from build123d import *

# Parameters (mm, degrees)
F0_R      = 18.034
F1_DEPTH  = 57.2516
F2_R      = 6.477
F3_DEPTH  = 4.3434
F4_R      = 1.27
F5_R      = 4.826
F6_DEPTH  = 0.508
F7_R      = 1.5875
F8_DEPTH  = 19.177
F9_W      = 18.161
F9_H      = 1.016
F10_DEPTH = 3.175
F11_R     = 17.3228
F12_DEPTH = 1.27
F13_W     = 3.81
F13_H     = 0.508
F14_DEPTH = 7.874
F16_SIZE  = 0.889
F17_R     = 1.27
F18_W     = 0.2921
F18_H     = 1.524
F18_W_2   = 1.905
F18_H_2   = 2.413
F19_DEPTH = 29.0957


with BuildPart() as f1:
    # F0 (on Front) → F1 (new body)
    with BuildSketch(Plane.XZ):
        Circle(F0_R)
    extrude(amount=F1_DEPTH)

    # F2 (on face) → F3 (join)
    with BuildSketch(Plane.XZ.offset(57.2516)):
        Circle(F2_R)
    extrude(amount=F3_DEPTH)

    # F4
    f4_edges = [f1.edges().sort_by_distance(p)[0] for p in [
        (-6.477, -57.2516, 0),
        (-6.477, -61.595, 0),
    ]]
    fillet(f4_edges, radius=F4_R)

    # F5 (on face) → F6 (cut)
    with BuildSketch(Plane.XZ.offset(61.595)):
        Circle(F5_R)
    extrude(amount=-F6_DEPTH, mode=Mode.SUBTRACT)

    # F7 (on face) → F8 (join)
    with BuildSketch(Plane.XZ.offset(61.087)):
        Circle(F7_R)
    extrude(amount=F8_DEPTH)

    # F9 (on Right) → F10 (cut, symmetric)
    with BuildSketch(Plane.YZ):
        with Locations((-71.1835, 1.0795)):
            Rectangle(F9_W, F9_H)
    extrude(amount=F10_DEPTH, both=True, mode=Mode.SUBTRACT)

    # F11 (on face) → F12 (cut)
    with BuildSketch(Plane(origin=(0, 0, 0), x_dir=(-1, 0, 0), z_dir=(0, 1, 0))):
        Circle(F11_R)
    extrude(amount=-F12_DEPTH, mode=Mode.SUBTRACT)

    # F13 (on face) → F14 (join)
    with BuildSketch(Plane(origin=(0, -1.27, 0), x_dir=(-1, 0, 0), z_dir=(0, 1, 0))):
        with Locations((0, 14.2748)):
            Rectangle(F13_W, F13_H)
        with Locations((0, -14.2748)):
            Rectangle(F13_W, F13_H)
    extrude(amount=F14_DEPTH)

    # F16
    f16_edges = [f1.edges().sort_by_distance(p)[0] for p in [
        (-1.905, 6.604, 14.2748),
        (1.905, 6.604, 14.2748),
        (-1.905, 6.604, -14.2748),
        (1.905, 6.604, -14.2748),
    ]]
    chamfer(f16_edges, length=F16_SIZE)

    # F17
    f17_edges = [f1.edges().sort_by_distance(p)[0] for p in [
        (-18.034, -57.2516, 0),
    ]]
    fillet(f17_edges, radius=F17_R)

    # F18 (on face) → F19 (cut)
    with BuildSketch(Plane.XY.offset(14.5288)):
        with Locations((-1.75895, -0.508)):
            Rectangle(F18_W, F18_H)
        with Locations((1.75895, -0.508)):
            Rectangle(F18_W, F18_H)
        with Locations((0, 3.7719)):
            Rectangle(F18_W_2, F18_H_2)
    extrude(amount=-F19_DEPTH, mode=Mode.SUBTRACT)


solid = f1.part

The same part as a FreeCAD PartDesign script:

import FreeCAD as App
import Part
import Sketcher
Q = App.Units.Quantity


def edges_at(feature, points):
    """Names of the edges that pass closest to the given points."""
    edges = feature.Shape.Edges
    near = lambda p: min(range(len(edges)), key=lambda i: edges[i].distToShape(Part.Vertex(*p))[0])
    return sorted({f"Edge{near(p) + 1}" for p in points})


def add_polygon(sketch, points):
    """Adds a closed chain of lines whose ends are joined by coincident constraints."""
    first, n = sketch.GeometryCount, len(points)
    for a, b in zip(points, points[1:] + points[:1]):
        sketch.addGeometry(Part.LineSegment(App.Vector(*a, 0), App.Vector(*b, 0)), False)
    for i in range(n):
        sketch.addConstraint(Sketcher.Constraint("Coincident", first + i, 2, first + (i + 1) % n, 1))

doc = App.newDocument("Part")
body = doc.addObject("PartDesign::Body", "Body")

# Sketch on XZ plane
sketch1 = doc.addObject("Sketcher::SketchObject", "Sketch")
body.addObject(sketch1)
sketch1.AttachmentSupport = (doc.XZ_Plane, [""])
sketch1.MapMode = "FlatFace"
sketch1.addGeometry(Part.Circle(App.Vector(0, 0, 0), App.Vector(0, 0, 1), 18), False)
sketch1.addConstraint([
    Sketcher.Constraint("Coincident", 0, 3, -1, 1),
    Sketcher.Constraint("Diameter", 0, Q("1.42 in")),
])
pad1 = doc.addObject("PartDesign::Pad", "Pad")
body.addObject(pad1)
pad1.Profile = sketch1
pad1.Length = Q("2.254 in")

# Sketch on XZ plane
sketch2 = doc.addObject("Sketcher::SketchObject", "Sketch001")
body.addObject(sketch2)
sketch2.AttachmentSupport = (doc.XZ_Plane, [""])
sketch2.MapMode = "FlatFace"
sketch2.AttachmentOffset = App.Placement(App.Vector(0, 0, 2.254 * 25.4), App.Rotation())
sketch2.addGeometry(Part.Circle(App.Vector(0, 0, 0), App.Vector(0, 0, 1), 6), False)
sketch2.addConstraint([
    Sketcher.Constraint("Coincident", 0, 3, -1, 1),
    Sketcher.Constraint("Diameter", 0, Q("0.51 in")),
])
pad2 = doc.addObject("PartDesign::Pad", "Pad001")
body.addObject(pad2)
pad2.Profile = sketch2
pad2.Length = Q("0.171 in")
doc.recompute()

fillet = doc.addObject("PartDesign::Fillet", "Fillet")
body.addObject(fillet)
fillet.Base = (pad2, edges_at(pad2, [(-6.477, -57.252, 0), (-6.477, -61.595, 0)]))
fillet.Radius = Q("0.05 in")

# Sketch on XZ plane
sketch3 = doc.addObject("Sketcher::SketchObject", "Sketch002")
body.addObject(sketch3)
sketch3.AttachmentSupport = (doc.XZ_Plane, [""])
sketch3.MapMode = "FlatFace"
sketch3.AttachmentOffset = App.Placement(App.Vector(0, 0, 2.425 * 25.4), App.Rotation())
sketch3.addGeometry(Part.Circle(App.Vector(0, 0, 0), App.Vector(0, 0, 1), 4.8), False)
sketch3.addConstraint([
    Sketcher.Constraint("Coincident", 0, 3, -1, 1),
    Sketcher.Constraint("Diameter", 0, Q("0.38 in")),
])
pocket1 = doc.addObject("PartDesign::Pocket", "Pocket")
body.addObject(pocket1)
pocket1.Profile = sketch3
pocket1.Length = Q("0.02 in")

# Sketch on XZ plane
sketch4 = doc.addObject("Sketcher::SketchObject", "Sketch003")
body.addObject(sketch4)
sketch4.AttachmentSupport = (doc.XZ_Plane, [""])
sketch4.MapMode = "FlatFace"
sketch4.AttachmentOffset = App.Placement(App.Vector(0, 0, 2.405 * 25.4), App.Rotation())
sketch4.addGeometry(Part.Circle(App.Vector(0, 0, 0), App.Vector(0, 0, 1), 1.6), False)
sketch4.addConstraint([
    Sketcher.Constraint("Coincident", 0, 3, -1, 1),
    Sketcher.Constraint("Diameter", 0, Q("0.125 in")),
])
pad3 = doc.addObject("PartDesign::Pad", "Pad002")
body.addObject(pad3)
pad3.Profile = sketch4
pad3.Length = Q("0.755 in")

# Sketch on YZ plane
sketch5 = doc.addObject("Sketcher::SketchObject", "Sketch004")
body.addObject(sketch5)
sketch5.AttachmentSupport = (doc.YZ_Plane, [""])
sketch5.MapMode = "FlatFace"
add_polygon(sketch5, [(-80.3, 1.6), (-80.3, 0.6), (-62.1, 0.6), (-62.1, 1.6)])  # lines 0-3
sketch5.addConstraint([
    Sketcher.Constraint("Vertical", 0),
    Sketcher.Constraint("Horizontal", 1),
    Sketcher.Constraint("Vertical", 2),
    Sketcher.Constraint("Horizontal", 3),
    Sketcher.Constraint("DistanceY", 0, 2, 0, 1, Q("0.04 in")),
    Sketcher.Constraint("DistanceX", 1, 1, 1, 2, Q("0.715 in")),
    Sketcher.Constraint("DistanceX", 0, 2, -1, 1, Q("3.16 in")),
    Sketcher.Constraint("DistanceY", -1, 1, 2, 2, Q("0.0625 in")),
])
pocket2 = doc.addObject("PartDesign::Pocket", "Pocket001")
body.addObject(pocket2)
pocket2.Profile = sketch5
pocket2.Length = Q("0.25 in")
pocket2.Midplane = True

# Sketch on XZ plane
sketch6 = doc.addObject("Sketcher::SketchObject", "Sketch005")
body.addObject(sketch6)
sketch6.AttachmentSupport = (doc.XZ_Plane, [""])
sketch6.MapMode = "FlatFace"
sketch6.addGeometry(Part.Circle(App.Vector(0, 0, 0), App.Vector(0, 0, 1), 17), False)
sketch6.addConstraint([
    Sketcher.Constraint("Coincident", 0, 3, -1, 1),
    Sketcher.Constraint("Diameter", 0, Q("1.364 in")),
])
pocket3 = doc.addObject("PartDesign::Pocket", "Pocket002")
body.addObject(pocket3)
pocket3.Profile = sketch6
pocket3.Length = Q("0.05 in")
pocket3.Reversed = True

# Sketch on XZ plane
sketch7 = doc.addObject("Sketcher::SketchObject", "Sketch006")
body.addObject(sketch7)
sketch7.AttachmentSupport = (doc.XZ_Plane, [""])
sketch7.MapMode = "FlatFace"
sketch7.AttachmentOffset = App.Placement(App.Vector(0, 0, 0.05 * 25.4), App.Rotation())
add_polygon(sketch7, [(1.9, 14.5), (1.9, 14), (-1.9, 14), (-1.9, 14.5)])  # lines 0-3
add_polygon(sketch7, [(1.9, -14), (1.9, -14.5), (-1.9, -14.5), (-1.9, -14)])  # lines 4-7
sketch7.addConstraint([
    Sketcher.Constraint("Vertical", 0),
    Sketcher.Constraint("Horizontal", 1),
    Sketcher.Constraint("Vertical", 2),
    Sketcher.Constraint("Horizontal", 3),
    Sketcher.Constraint("Vertical", 4),
    Sketcher.Constraint("Horizontal", 5),
    Sketcher.Constraint("Vertical", 6),
    Sketcher.Constraint("Horizontal", 7),
    Sketcher.Constraint("Symmetric", 2, 2, 4, 2, -1, 1),
    Sketcher.Constraint("Symmetric", 0, 2, 6, 2, -1, 1),
    Sketcher.Constraint("Vertical", 3, 2, 4, 2),
    Sketcher.Constraint("DistanceX", 1, 2, 1, 1, Q("0.15 in")),
    Sketcher.Constraint("DistanceY", 0, 2, 0, 1, Q("0.02 in")),
    Sketcher.Constraint("DistanceY", -1, 1, 0, 2, Q("0.552 in")),
])
pad4 = doc.addObject("PartDesign::Pad", "Pad003")
body.addObject(pad4)
pad4.Profile = sketch7
pad4.Length = Q("0.31 in")
pad4.Reversed = True
doc.recompute()

chamfer = doc.addObject("PartDesign::Chamfer", "Chamfer")
body.addObject(chamfer)
chamfer.Base = (pad4, edges_at(pad4, [
    (-1.905, 6.604, 14.275),
    (1.905, 6.604, 14.275),
    (-1.905, 6.604, -14.275),
    (1.905, 6.604, -14.275),
]))
chamfer.Size = Q("0.035 in")
doc.recompute()

fillet2 = doc.addObject("PartDesign::Fillet", "Fillet001")
body.addObject(fillet2)
fillet2.Base = (chamfer, edges_at(chamfer, [(-18.034, -57.252, 0)]))
fillet2.Radius = Q("0.05 in")

# Sketch on XY plane
sketch8 = doc.addObject("Sketcher::SketchObject", "Sketch007")
body.addObject(sketch8)
sketch8.AttachmentSupport = (doc.XY_Plane, [""])
sketch8.MapMode = "FlatFace"
sketch8.AttachmentOffset = App.Placement(App.Vector(0, 0, 0.572 * 25.4), App.Rotation())
add_polygon(sketch8, [(-1.91, 0.25), (-1.91, -1.27), (-1.61, -1.27), (-1.61, 0.25)])  # lines 0-3
add_polygon(sketch8, [(1.61, 0.25), (1.61, -1.27), (1.91, -1.27), (1.91, 0.25)])  # lines 4-7
add_polygon(sketch8, [(-0.95, 4.98), (-0.95, 2.57), (0.95, 2.57), (0.95, 4.98)])  # lines 8-11
sketch8.addConstraint([
    Sketcher.Constraint("Vertical", 0),
    Sketcher.Constraint("Horizontal", 1),
    Sketcher.Constraint("Vertical", 2),
    Sketcher.Constraint("Horizontal", 3),
    Sketcher.Constraint("Vertical", 4),
    Sketcher.Constraint("Horizontal", 5),
    Sketcher.Constraint("Vertical", 6),
    Sketcher.Constraint("Horizontal", 7),
    Sketcher.Constraint("Vertical", 8),
    Sketcher.Constraint("Horizontal", 9),
    Sketcher.Constraint("Vertical", 10),
    Sketcher.Constraint("Horizontal", 11),
    Sketcher.Constraint("Symmetric", 1, 2, 4, 2, -2),
    Sketcher.Constraint("Symmetric", 3, 2, 6, 2, -2),
    Sketcher.Constraint("DistanceY", 0, 2, 0, 1, Q("0.06 in")),
    Sketcher.Constraint("DistanceX", 9, 1, 9, 2, Q("0.075 in")),
    Sketcher.Constraint("DistanceY", 8, 2, 8, 1, Q("0.095 in")),
    Sketcher.Constraint("DistanceY", 0, 2, -1, 1, Q("0.05 in")),
    Sketcher.Constraint("DistanceX", 0, 2, 5, 2, Q("0.15 in")),
    Sketcher.Constraint("DistanceX", 1, 1, 1, 2, Q("0.0115 in")),
    Sketcher.Constraint("DistanceY", -1, 1, 8, 2, Q("0.101 in")),
    Sketcher.Constraint("DistanceX", 2, 2, 8, 2, Q("0.026 in")),
])
pocket4 = doc.addObject("PartDesign::Pocket", "Pocket003")
body.addObject(pocket4)
pocket4.Profile = sketch8
pocket4.Length = Q("1.1455 in")

doc.recompute()
